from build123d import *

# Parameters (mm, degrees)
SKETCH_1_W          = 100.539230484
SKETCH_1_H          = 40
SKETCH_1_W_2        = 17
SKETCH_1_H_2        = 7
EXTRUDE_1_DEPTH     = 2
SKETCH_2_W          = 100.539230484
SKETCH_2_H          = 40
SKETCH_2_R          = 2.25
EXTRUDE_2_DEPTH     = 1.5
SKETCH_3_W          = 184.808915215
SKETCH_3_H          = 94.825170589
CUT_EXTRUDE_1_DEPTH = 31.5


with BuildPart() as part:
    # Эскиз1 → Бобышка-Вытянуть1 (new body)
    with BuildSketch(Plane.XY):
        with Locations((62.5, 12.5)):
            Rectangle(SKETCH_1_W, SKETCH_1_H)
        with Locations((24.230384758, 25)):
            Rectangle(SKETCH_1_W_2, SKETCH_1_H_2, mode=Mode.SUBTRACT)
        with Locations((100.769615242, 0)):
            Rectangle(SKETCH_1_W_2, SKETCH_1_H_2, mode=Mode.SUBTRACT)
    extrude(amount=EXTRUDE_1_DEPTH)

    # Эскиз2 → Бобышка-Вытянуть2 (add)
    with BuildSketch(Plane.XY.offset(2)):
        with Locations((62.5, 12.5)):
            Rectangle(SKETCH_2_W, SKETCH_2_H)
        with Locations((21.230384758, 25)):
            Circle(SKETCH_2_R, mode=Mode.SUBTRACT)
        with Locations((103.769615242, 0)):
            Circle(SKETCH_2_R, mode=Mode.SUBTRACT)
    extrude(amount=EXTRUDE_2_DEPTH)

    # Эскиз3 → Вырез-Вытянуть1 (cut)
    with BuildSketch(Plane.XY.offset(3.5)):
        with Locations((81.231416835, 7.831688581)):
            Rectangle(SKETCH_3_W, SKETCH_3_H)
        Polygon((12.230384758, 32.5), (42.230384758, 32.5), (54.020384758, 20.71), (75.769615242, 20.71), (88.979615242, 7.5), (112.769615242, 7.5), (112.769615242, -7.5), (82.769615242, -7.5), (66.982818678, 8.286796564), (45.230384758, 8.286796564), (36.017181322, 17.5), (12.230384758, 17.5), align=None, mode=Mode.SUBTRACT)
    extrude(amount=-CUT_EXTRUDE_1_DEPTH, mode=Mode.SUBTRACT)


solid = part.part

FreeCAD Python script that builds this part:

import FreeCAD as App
import Part
import Sketcher

V = App.Vector
Q = App.Units.Quantity


def add_polygon(sketch, points):
    """Adds a closed chain of lines whose ends are joined by coincident constraints."""
    first, n = sketch.GeometryCount, len(points)
    for a, b in zip(points, points[1:] + points[:1]):
        sketch.addGeometry(Part.LineSegment(App.Vector(*a, 0), App.Vector(*b, 0)), False)
    for i in range(n):
        sketch.addConstraint(Sketcher.Constraint("Coincident", first + i, 2, first + (i + 1) % n, 1))

doc = App.newDocument("Part")
params = doc.addObject("Spreadsheet::Sheet", "Params")
for row, (alias, value) in enumerate([
    ("sketch1_width", "17 mm"),
    ("sketch1_height", "40 mm"),
    ("sketch1_height2", "7 mm"),
    ("pad1_length", "2 mm"),
    ("sketch2_diameter", "4.5 mm"),
    ("sketch2_height", "40 mm"),
    ("pad2_length", "1.5 mm"),
    ("sketch3_width", "30 mm"),
    ("sketch3_height", "15 mm"),
    ("sketch3_width2", "23.79 mm"),
    ("pocket1_length", "31.5 mm"),
], start=1):
    params.set(f"A{row}", alias)
    params.set(f"B{row}", "=" + value)
    params.setAlias(f"B{row}", alias)

body = doc.addObject("PartDesign::Body", "Body")

# Sketch on XY plane
sketch1 = doc.addObject("Sketcher::SketchObject", "Sketch")
body.addObject(sketch1)
sketch1.AttachmentSupport = (doc.XY_Plane, [""])
sketch1.MapMode = "FlatFace"
add_polygon(sketch1, [(12.230385, 32.5), (12.230385, -7.5), (112.769615, -7.5), (112.769615, 32.5)])  # lines 0-3
add_polygon(sketch1, [(109.269615, -3.5), (92.269615, -3.5), (92.269615, 3.5), (109.269615, 3.5)])  # lines 4-7
add_polygon(sketch1, [(32.730385, 21.5), (15.730385, 21.5), (15.730385, 28.5), (32.730385, 28.5)])  # lines 8-11
sketch1.addConstraint(Sketcher.Constraint("Vertical", 0))
sketch1.addConstraint(Sketcher.Constraint("Horizontal", 1))
sketch1.addConstraint(Sketcher.Constraint("Vertical", 2))
sketch1.addConstraint(Sketcher.Constraint("Horizontal", 3))
sketch1.addConstraint(Sketcher.Constraint("Horizontal", 4))
sketch1.addConstraint(Sketcher.Constraint("Vertical", 5))
sketch1.addConstraint(Sketcher.Constraint("Horizontal", 6))
sketch1.addConstraint(Sketcher.Constraint("Vertical", 7))
sketch1.addConstraint(Sketcher.Constraint("Horizontal", 8))
sketch1.addConstraint(Sketcher.Constraint("Vertical", 9))
sketch1.addConstraint(Sketcher.Constraint("Horizontal", 10))
sketch1.addConstraint(Sketcher.Constraint("Vertical", 11))
sketch1.addConstraint(Sketcher.Constraint("Equal", 6, 8))
sketch1.addConstraint(Sketcher.Constraint("Equal", 7, 9))
sketch1.addConstraint(Sketcher.Constraint("DistanceX", 4, 2, 4, 1, 17.0))
sketch1.addConstraint(Sketcher.Constraint("DistanceY", 0, 2, 0, 1, 40.0))
sketch1.addConstraint(Sketcher.Constraint("DistanceY", 5, 1, 5, 2, 7.0))
sketch1.addConstraint(Sketcher.Constraint("DistanceY", 1, 2, 4, 2, 4.0))
sketch1.addConstraint(Sketcher.Constraint("DistanceY", 8, 2, 3, 2, 11.0))
sketch1.addConstraint(Sketcher.Constraint("DistanceY", 0, 2, -1, 1, 7.5))
sketch1.addConstraint(Sketcher.Constraint("DistanceX", 4, 2, 1, 2, 20.5))
sketch1.addConstraint(Sketcher.Constraint("DistanceX", 3, 2, 8, 2, 3.5))
sketch1.addConstraint(Sketcher.Constraint("DistanceX", 1, 1, 1, 2, 100.53923))
sketch1.addConstraint(Sketcher.Constraint("DistanceX", -1, 1, 0, 2, 12.230385))
sketch1.setExpression("Constraints[26]", "Params.sketch1_width")
sketch1.setExpression("Constraints[27]", "Params.sketch1_height")
sketch1.setExpression("Constraints[28]", "Params.sketch1_height2")
pad1 = doc.addObject("PartDesign::Pad", "Pad")
body.addObject(pad1)
pad1.Profile = sketch1
pad1.setExpression("Length", "Params.pad1_length")

# Sketch on XY plane
sketch2 = doc.addObject("Sketcher::SketchObject", "Sketch001")
body.addObject(sketch2)
sketch2.AttachmentSupport = (doc.XY_Plane, [""])
sketch2.MapMode = "FlatFace"
sketch2.AttachmentOffset = App.Placement(V(0, 0, 2), App.Rotation())
add_polygon(sketch2, [(12.230385, 32.5), (12.230385, -7.5), (112.769615, -7.5), (112.769615, 32.5)])  # lines 0-3
sketch2.addGeometry(Part.Circle(V(103.769615, 0, 0), V(0, 0, 1), 2.25), False)  # 4
sketch2.addGeometry(Part.Circle(V(21.230385, 25, 0), V(0, 0, 1), 2.25), False)  # 5
sketch2.addConstraint(Sketcher.Constraint("Vertical", 0))
sketch2.addConstraint(Sketcher.Constraint("Horizontal", 1))
sketch2.addConstraint(Sketcher.Constraint("Vertical", 2))
sketch2.addConstraint(Sketcher.Constraint("Horizontal", 3))
sketch2.addConstraint(Sketcher.Constraint("Equal", 4, 5))
sketch2.addConstraint(Sketcher.Constraint("PointOnObject", 4, 3, -1))
sketch2.addConstraint(Sketcher.Constraint("Diameter", 4, 4.5))
sketch2.addConstraint(Sketcher.Constraint("DistanceY", 0, 2, 0, 1, 40.0))
sketch2.addConstraint(Sketcher.Constraint("DistanceY", -1, 1, 5, 3, 25.0))
sketch2.addConstraint(Sketcher.Constraint("DistanceX", 0, 2, 5, 3, 9.0))
sketch2.addConstraint(Sketcher.Constraint("DistanceX", 4, 3, 1, 2, 9.0))
sketch2.addConstraint(Sketcher.Constraint("DistanceY", 0, 2, -1, 1, 7.5))
sketch2.addConstraint(Sketcher.Constraint("DistanceX", 1, 1, 1, 2, 100.53923))
sketch2.addConstraint(Sketcher.Constraint("DistanceX", -1, 1, 4, 3, 103.769615))
sketch2.setExpression("Constraints[10]", "Params.sketch2_diameter")
sketch2.setExpression("Constraints[11]", "Params.sketch2_height")
pad2 = doc.addObject("PartDesign::Pad", "Pad001")
body.addObject(pad2)
pad2.Profile = sketch2
pad2.setExpression("Length", "Params.pad2_length")

# Sketch on XY plane
sketch3 = doc.addObject("Sketcher::SketchObject", "Sketch002")
body.addObject(sketch3)
sketch3.AttachmentSupport = (doc.XY_Plane, [""])
sketch3.MapMode = "FlatFace"
sketch3.AttachmentOffset = App.Placement(V(0, 0, 3.5), App.Rotation())
add_polygon(sketch3, [(-11.173041, 55.244274), (-11.173041, -39.580897), (173.635874, -39.580897), (173.635874, 55.244274)])  # lines 0-3
add_polygon(sketch3, [(12.230385, 17.5), (12.230385, 32.5), (42.230385, 32.5), (54.020385, 20.71), (75.769615, 20.71), (88.979615, 7.5), (112.769615, 7.5), (112.769615, -7.5), (82.769615, -7.5), (66.982819, 8.286797), (45.230385, 8.286797), (36.017181, 17.5)])  # lines 4-15
sketch3.addConstraint(Sketcher.Constraint("Vertical", 0))
sketch3.addConstraint(Sketcher.Constraint("Horizontal", 1))
sketch3.addConstraint(Sketcher.Constraint("Vertical", 2))
sketch3.addConstraint(Sketcher.Constraint("Horizontal", 3))
sketch3.addConstraint(Sketcher.Constraint("Vertical", 4))
sketch3.addConstraint(Sketcher.Constraint("Horizontal", 5))
sketch3.addConstraint(Sketcher.Constraint("Horizontal", 7))
sketch3.addConstraint(Sketcher.Constraint("Horizontal", 9))
sketch3.addConstraint(Sketcher.Constraint("Vertical", 10))
sketch3.addConstraint(Sketcher.Constraint("Horizontal", 11))
sketch3.addConstraint(Sketcher.Constraint("Horizontal", 13))
sketch3.addConstraint(Sketcher.Constraint("Horizontal", 15))
sketch3.addConstraint(Sketcher.Constraint("Parallel", 6, 8))
sketch3.addConstraint(Sketcher.Constraint("Parallel", 8, 12))
sketch3.addConstraint(Sketcher.Constraint("Parallel", 12, 14))
sketch3.addConstraint(Sketcher.Constraint("Equal", 5, 11))
sketch3.addConstraint(Sketcher.Constraint("Equal", 4, 10))
sketch3.addConstraint(Sketcher.Constraint("DistanceX", 5, 1, 5, 2, 30.0))
sketch3.addConstraint(Sketcher.Constraint("DistanceY", 4, 1, 4, 2, 15.0))
sketch3.addConstraint(Sketcher.Constraint("Angle", 6, Q("-45 deg")))
sketch3.addConstraint(Sketcher.Constraint("DistanceY", 8, 2, 5, 2, 25.0))
sketch3.addConstraint(Sketcher.Constraint("DistanceX", 7, 2, 9, 2, 37.0))
sketch3.addConstraint(Sketcher.Constraint("DistanceX", 5, 2, 13, 2, 3.0))
sketch3.addConstraint(Sketcher.Constraint("DistanceX", 9, 1, 9, 2, 23.79))
sketch3.addConstraint(Sketcher.Constraint("DistanceY", -1, 1, 4, 2, 32.5))
sketch3.addConstraint(Sketcher.Constraint("Distance", 12, 22.325902))
sketch3.addConstraint(Sketcher.Constraint("DistanceX", 7, 1, 7, 2, 21.74923))
sketch3.addConstraint(Sketcher.Constraint("DistanceY", 0, 2, 0, 1, 94.825171))
sketch3.addConstraint(Sketcher.Constraint("DistanceX", 1, 1, 1, 2, 184.808915))
sketch3.addConstraint(Sketcher.Constraint("DistanceX", 0, 2, -1, 1, 11.173041))
sketch3.addConstraint(Sketcher.Constraint("DistanceX", -1, 1, 12, 2, 66.982819))
sketch3.addConstraint(Sketcher.Constraint("DistanceY", 0, 2, -1, 1, 39.580897))
sketch3.setExpression("Constraints[33]", "Params.sketch3_width")
sketch3.setExpression("Constraints[34]", "Params.sketch3_height")
sketch3.setExpression("Constraints[39]", "Params.sketch3_width2")
pocket1 = doc.addObject("PartDesign::Pocket", "Pocket")
body.addObject(pocket1)
pocket1.Profile = sketch3
pocket1.setExpression("Length", "Params.pocket1_length")

doc.recompute()
